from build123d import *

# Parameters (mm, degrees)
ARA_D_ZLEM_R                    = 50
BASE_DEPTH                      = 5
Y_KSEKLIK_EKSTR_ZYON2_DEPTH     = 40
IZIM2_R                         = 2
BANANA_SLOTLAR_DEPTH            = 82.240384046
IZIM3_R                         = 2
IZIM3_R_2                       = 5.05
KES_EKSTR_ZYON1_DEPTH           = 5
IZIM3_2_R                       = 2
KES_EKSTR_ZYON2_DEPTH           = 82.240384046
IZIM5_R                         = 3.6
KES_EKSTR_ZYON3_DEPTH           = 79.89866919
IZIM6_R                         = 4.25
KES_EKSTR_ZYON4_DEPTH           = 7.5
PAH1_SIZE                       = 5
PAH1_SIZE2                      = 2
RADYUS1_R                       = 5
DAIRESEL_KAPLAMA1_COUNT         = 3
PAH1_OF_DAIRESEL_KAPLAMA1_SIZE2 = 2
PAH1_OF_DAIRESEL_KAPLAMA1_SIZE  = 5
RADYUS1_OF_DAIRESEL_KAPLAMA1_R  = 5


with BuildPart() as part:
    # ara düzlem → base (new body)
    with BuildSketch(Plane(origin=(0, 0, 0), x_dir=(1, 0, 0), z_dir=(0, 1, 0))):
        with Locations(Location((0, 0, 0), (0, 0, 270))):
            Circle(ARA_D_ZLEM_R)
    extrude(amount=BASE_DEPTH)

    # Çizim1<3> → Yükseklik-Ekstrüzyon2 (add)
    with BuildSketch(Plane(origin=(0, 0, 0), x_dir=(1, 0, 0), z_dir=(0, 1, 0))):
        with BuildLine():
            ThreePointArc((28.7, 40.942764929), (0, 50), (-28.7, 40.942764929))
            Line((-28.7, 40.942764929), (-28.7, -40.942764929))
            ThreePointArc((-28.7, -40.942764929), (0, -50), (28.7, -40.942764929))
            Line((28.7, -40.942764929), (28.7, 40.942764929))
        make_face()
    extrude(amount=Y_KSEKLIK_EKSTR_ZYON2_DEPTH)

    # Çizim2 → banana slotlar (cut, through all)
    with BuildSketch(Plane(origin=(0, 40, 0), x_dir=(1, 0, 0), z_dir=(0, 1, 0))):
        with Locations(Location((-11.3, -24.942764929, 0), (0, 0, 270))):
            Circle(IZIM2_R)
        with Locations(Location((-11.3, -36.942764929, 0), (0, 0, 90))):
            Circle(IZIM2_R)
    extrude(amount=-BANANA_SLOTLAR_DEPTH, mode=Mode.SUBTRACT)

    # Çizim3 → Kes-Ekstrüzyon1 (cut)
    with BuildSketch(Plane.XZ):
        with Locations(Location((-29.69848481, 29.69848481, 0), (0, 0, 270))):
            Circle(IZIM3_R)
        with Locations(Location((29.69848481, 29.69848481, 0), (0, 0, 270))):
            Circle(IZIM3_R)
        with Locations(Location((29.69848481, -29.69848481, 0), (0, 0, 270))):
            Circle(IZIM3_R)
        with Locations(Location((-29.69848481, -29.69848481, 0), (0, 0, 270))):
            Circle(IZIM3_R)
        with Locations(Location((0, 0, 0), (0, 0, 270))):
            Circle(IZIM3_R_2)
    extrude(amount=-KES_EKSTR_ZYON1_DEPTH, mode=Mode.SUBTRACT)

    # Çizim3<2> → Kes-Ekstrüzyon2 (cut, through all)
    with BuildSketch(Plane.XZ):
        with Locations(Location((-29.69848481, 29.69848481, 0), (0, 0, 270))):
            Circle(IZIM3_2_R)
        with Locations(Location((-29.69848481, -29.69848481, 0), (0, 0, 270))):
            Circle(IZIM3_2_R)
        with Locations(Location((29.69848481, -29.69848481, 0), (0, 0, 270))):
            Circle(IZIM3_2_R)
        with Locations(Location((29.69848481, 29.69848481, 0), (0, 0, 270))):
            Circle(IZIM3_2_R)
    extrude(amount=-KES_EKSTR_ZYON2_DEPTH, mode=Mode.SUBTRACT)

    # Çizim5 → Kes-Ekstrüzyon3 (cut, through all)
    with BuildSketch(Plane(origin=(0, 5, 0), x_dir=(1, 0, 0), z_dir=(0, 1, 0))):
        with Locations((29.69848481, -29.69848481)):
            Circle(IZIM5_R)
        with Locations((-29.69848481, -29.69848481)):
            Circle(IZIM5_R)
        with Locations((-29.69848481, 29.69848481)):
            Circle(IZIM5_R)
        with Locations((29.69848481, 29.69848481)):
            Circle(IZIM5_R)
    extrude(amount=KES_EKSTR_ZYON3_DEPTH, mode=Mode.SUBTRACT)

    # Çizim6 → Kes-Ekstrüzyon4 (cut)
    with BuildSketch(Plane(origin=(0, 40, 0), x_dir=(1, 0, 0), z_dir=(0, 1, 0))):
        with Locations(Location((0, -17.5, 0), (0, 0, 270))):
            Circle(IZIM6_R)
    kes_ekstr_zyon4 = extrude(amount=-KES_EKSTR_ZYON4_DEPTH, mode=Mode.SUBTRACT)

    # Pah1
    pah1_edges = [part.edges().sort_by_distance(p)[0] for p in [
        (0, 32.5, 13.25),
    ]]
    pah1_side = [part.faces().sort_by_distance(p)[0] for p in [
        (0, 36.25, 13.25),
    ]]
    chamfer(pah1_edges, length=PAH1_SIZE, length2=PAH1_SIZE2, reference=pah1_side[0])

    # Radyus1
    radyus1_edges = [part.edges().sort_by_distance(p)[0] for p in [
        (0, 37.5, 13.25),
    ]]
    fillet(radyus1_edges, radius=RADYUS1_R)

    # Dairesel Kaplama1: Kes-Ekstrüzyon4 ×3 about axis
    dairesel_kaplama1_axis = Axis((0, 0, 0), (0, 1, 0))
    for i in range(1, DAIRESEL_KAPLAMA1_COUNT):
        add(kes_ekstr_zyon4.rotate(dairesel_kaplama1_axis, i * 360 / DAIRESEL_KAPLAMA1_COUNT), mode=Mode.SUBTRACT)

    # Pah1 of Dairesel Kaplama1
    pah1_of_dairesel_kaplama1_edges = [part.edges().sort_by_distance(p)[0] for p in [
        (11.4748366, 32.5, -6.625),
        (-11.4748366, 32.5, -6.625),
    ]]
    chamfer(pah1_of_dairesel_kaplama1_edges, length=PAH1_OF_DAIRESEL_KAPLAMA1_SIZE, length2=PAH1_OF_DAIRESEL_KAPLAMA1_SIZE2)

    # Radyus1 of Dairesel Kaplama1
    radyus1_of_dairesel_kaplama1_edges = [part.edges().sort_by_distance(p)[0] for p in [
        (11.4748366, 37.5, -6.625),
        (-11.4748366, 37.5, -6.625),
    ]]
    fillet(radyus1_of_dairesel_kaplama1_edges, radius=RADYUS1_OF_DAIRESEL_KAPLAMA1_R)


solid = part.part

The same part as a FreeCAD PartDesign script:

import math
import FreeCAD as App
import Part
import Sketcher
from FreeCAD import Vector


def edges_at(feature, points):
    """Names of the edges that pass closest to the given points."""
    edges = feature.Shape.Edges
    near = lambda p: min(range(len(edges)), key=lambda i: edges[i].distToShape(Part.Vertex(*p))[0])
    return sorted({f"Edge{near(p) + 1}" for p in points})

doc = App.newDocument("Part")
body = doc.addObject("PartDesign::Body", "Body")

# Sketch on XZ plane
sketch1 = body.newObject("Sketcher::SketchObject", "Sketch")
sketch1.AttachmentSupport = (doc.getObject("XZ_Plane"), [""])
sketch1.MapMode = "FlatFace"
sketch1.addGeometry(Part.Circle(Vector(0, 0, 0), Vector(0, 0, 1), 50), False)
sketch1.addConstraint([
    Sketcher.Constraint("Coincident", 0, 3, -1, 1),
    Sketcher.Constraint("Diameter", 0, 100.0),
])
pad1 = body.newObject("PartDesign::Pad", "Pad")
pad1.Profile = sketch1
pad1.Length = 5
pad1.Reversed = True

# Sketch on XZ plane
sketch2 = body.newObject("Sketcher::SketchObject", "Sketch001")
sketch2.AttachmentSupport = (doc.getObject("XZ_Plane"), [""])
sketch2.MapMode = "FlatFace"
sketch2.addGeometry([
    Part.ArcOfCircle(Part.Circle(Vector(0, 0, 0), Vector(0, 0, 1), 50), math.radians(-125), math.radians(-55)),
    Part.LineSegment(Vector(-29, -41, 0), Vector(-29, 41, 0)),
    Part.ArcOfCircle(Part.Circle(Vector(0, 0, 0), Vector(0, 0, 1), 50), math.radians(55), math.radians(125)),
    Part.LineSegment(Vector(29, 41, 0), Vector(29, -41, 0)),
], False)
sketch2.addConstraint([
    Sketcher.Constraint("Coincident", 0, 1, 1, 1),
    Sketcher.Constraint("Coincident", 1, 2, 2, 2),
    Sketcher.Constraint("Coincident", 2, 1, 3, 1),
    Sketcher.Constraint("Coincident", 3, 2, 0, 2),
    Sketcher.Constraint("Vertical", 1),
    Sketcher.Constraint("Vertical", 3),
    Sketcher.Constraint("Coincident", 0, 3, -1, 1),
    Sketcher.Constraint("Coincident", 2, 3, -1, 1),
    Sketcher.Constraint("Equal", 0, 2),
    Sketcher.Constraint("Horizontal", 1, 2, 2, 1),
    Sketcher.Constraint("Radius", 0, 50.0),
    Sketcher.Constraint("DistanceX", 0, 1, -1, 1, 28.7),
])
pad2 = body.newObject("PartDesign::Pad", "Pad001")
pad2.Profile = sketch2
pad2.Length = 40
pad2.Reversed = True

# Sketch on XZ plane
sketch3 = body.newObject("Sketcher::SketchObject", "Sketch002")
sketch3.AttachmentSupport = (doc.getObject("XZ_Plane"), [""])
sketch3.MapMode = "FlatFace"
sketch3.AttachmentOffset = App.Placement(Vector(0, 0, -40), App.Rotation())
sketch3.addGeometry([
    Part.Circle(Vector(-11.3, 24.9, 0), Vector(0, 0, 1), 2),
    Part.Circle(Vector(-11.3, 36.9, 0), Vector(0, 0, 1), 2),
], False)
sketch3.addConstraint([
    Sketcher.Constraint("Equal", 0, 1),
    Sketcher.Constraint("Vertical", 0, 3, 1, 3),
    Sketcher.Constraint("Diameter", 0, 4.0),
    Sketcher.Constraint("DistanceY", 0, 3, 1, 3, 12.0),
    Sketcher.Constraint("DistanceX", 0, 3, -1, 1, 11.3),
    Sketcher.Constraint("DistanceY", -1, 1, 0, 3, 24.942765),
])
pocket1 = body.newObject("PartDesign::Pocket", "Pocket")
pocket1.Profile = sketch3
pocket1.Type = "ThroughAll"
pocket1.Reversed = True

# Sketch on XZ plane
sketch4 = body.newObject("Sketcher::SketchObject", "Sketch003")
sketch4.AttachmentSupport = (doc.getObject("XZ_Plane"), [""])
sketch4.MapMode = "FlatFace"
sketch4.addGeometry([
    Part.Circle(Vector(-29.7, 29.7, 0), Vector(0, 0, 1), 2),  # 0
    Part.Circle(Vector(29.7, 29.7, 0), Vector(0, 0, 1), 2),  # 1
    Part.Circle(Vector(29.7, -29.7, 0), Vector(0, 0, 1), 2),  # 2
    Part.Circle(Vector(-29.7, -29.7, 0), Vector(0, 0, 1), 2),  # 3
    Part.Circle(Vector(0, 0, 0), Vector(0, 0, 1), 5),  # 4
], False)
sketch4.addConstraint([
    Sketcher.Constraint("Coincident", 4, 3, -1, 1),
    Sketcher.Constraint("Equal", 0, 1),
    Sketcher.Constraint("Equal", 1, 2),
    Sketcher.Constraint("Equal", 2, 3),
    Sketcher.Constraint("Symmetric", 0, 3, 2, 3, -1, 1),
    Sketcher.Constraint("Symmetric", 1, 3, 3, 3, -1, 1),
    Sketcher.Constraint("Symmetric", 0, 3, 1, 3, -2),
    Sketcher.Constraint("Diameter", 0, 4.0),
    Sketcher.Constraint("Diameter", 4, 10.1),
    Sketcher.Constraint("DistanceX", 0, 3, 1, 3, 59.39697),
    Sketcher.Constraint("DistanceY", 2, 3, 1, 3, 59.39697),
])
pocket2 = body.newObject("PartDesign::Pocket", "Pocket001")
pocket2.Profile = sketch4
pocket2.Length = 5

# Sketch on XZ plane
sketch5 = body.newObject("Sketcher::SketchObject", "Sketch004")
sketch5.AttachmentSupport = (doc.getObject("XZ_Plane"), [""])
sketch5.MapMode = "FlatFace"
sketch5.addGeometry([
    Part.Circle(Vector(-29.7, 29.7, 0), Vector(0, 0, 1), 2),
    Part.Circle(Vector(-29.7, -29.7, 0), Vector(0, 0, 1), 2),
    Part.Circle(Vector(29.7, -29.7, 0), Vector(0, 0, 1), 2),
    Part.Circle(Vector(29.7, 29.7, 0), Vector(0, 0, 1), 2),
], False)
sketch5.addConstraint([
    Sketcher.Constraint("Equal", 0, 1),
    Sketcher.Constraint("Equal", 1, 2),
    Sketcher.Constraint("Equal", 2, 3),
    Sketcher.Constraint("Symmetric", 0, 3, 2, 3, -1, 1),
    Sketcher.Constraint("Symmetric", 1, 3, 3, 3, -1, 1),
    Sketcher.Constraint("Symmetric", 1, 3, 2, 3, -2),
    Sketcher.Constraint("Diameter", 0, 4.0),
    Sketcher.Constraint("DistanceY", 1, 3, 0, 3, 59.39697),
    Sketcher.Constraint("DistanceX", 1, 3, 2, 3, 59.39697),
])
pocket3 = body.newObject("PartDesign::Pocket", "Pocket002")
pocket3.Profile = sketch5
pocket3.Type = "ThroughAll"

# Sketch on XZ plane
sketch6 = body.newObject("Sketcher::SketchObject", "Sketch005")
sketch6.AttachmentSupport = (doc.getObject("XZ_Plane"), [""])
sketch6.MapMode = "FlatFace"
sketch6.AttachmentOffset = App.Placement(Vector(0, 0, -5), App.Rotation())
sketch6.addGeometry([
    Part.Circle(Vector(29.7, 29.7, 0), Vector(0, 0, 1), 3.6),
    Part.Circle(Vector(-29.7, 29.7, 0), Vector(0, 0, 1), 3.6),
    Part.Circle(Vector(-29.7, -29.7, 0), Vector(0, 0, 1), 3.6),
    Part.Circle(Vector(29.7, -29.7, 0), Vector(0, 0, 1), 3.6),
], False)
sketch6.addConstraint([
    Sketcher.Constraint("Equal", 0, 1),
    Sketcher.Constraint("Equal", 1, 2),
    Sketcher.Constraint("Equal", 2, 3),
    Sketcher.Constraint("Symmetric", 0, 3, 2, 3, -1, 1),
    Sketcher.Constraint("Symmetric", 1, 3, 3, 3, -1, 1),
    Sketcher.Constraint("Symmetric", 0, 3, 1, 3, -2),
    Sketcher.Constraint("Diameter", 0, 7.2),
    Sketcher.Constraint("DistanceX", 1, 3, 0, 3, 59.39697),
    Sketcher.Constraint("DistanceY", 2, 3, 1, 3, 59.39697),
])
pocket4 = body.newObject("PartDesign::Pocket", "Pocket003")
pocket4.Profile = sketch6
pocket4.Type = "ThroughAll"

# Sketch on XZ plane
sketch7 = body.newObject("Sketcher::SketchObject", "Sketch006")
sketch7.AttachmentSupport = (doc.getObject("XZ_Plane"), [""])
sketch7.MapMode = "FlatFace"
sketch7.AttachmentOffset = App.Placement(Vector(0, 0, -40), App.Rotation())
sketch7.addGeometry(Part.Circle(Vector(0, 17.5, 0), Vector(0, 0, 1), 4.2), False)
sketch7.addConstraint([
    Sketcher.Constraint("PointOnObject", 0, 3, -2),
    Sketcher.Constraint("Diameter", 0, 8.5),
    Sketcher.Constraint("DistanceY", -1, 1, 0, 3, 17.5),
])
pocket5 = body.newObject("PartDesign::Pocket", "Pocket004")
pocket5.Profile = sketch7
pocket5.Length = 7.5
pocket5.Reversed = True
doc.recompute()

chamfer = body.newObject("PartDesign::Chamfer", "Chamfer")
chamfer.Base = (pocket5, edges_at(pocket5, [(0, 32.5, 13.25)]))
chamfer.ChamferType = "Two distances"
chamfer.Size = 5
chamfer.Size2 = 2
doc.recompute()

fillet = body.newObject("PartDesign::Fillet", "Fillet")
fillet.Base = (chamfer, edges_at(chamfer, [(0, 37.5, 13.25)]))
fillet.Radius = 5
doc.recompute()

polarpattern = body.newObject("PartDesign::PolarPattern", "PolarPattern")
polarpattern.Originals = [pocket5]
polarpattern.Axis = (doc.getObject("Y_Axis"), [""])
polarpattern.Angle = 360
polarpattern.Occurrences = 3
body.Tip = polarpattern
doc.recompute()

chamfer2 = body.newObject("PartDesign::Chamfer", "Chamfer001")
chamfer2.Base = (polarpattern, edges_at(polarpattern, [(11.475, 32.5, -6.625), (-11.475, 32.5, -6.625)]))
chamfer2.ChamferType = "Two distances"
chamfer2.Size = 5
chamfer2.Size2 = 2
doc.recompute()

fillet2 = body.newObject("PartDesign::Fillet", "Fillet001")
fillet2.Base = (chamfer2, edges_at(chamfer2, [(11.475, 37.5, -6.625), (-11.475, 37.5, -6.625)]))
fillet2.Radius = 5

doc.recompute()
